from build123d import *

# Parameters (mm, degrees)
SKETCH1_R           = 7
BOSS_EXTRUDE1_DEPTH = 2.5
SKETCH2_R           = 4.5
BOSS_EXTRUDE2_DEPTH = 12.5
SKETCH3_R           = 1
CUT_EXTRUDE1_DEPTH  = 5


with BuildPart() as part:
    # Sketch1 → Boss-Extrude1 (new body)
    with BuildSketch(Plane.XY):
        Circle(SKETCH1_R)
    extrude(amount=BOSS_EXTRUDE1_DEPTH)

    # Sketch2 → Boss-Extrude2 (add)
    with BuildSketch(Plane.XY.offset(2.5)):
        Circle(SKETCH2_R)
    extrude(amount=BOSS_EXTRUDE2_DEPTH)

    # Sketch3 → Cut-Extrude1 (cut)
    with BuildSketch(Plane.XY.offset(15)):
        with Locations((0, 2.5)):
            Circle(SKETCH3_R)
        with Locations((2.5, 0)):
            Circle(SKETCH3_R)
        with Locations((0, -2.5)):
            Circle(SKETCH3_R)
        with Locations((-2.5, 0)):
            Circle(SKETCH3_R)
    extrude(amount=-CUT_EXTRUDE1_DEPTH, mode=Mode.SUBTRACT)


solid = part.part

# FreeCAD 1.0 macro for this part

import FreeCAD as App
import Part
import Sketcher

V = App.Vector

doc = App.newDocument("Part")
params = doc.addObject("Spreadsheet::Sheet", "Params")
for row, (alias, value) in enumerate([
    ("sketch1_diameter", "14 mm"),
    ("pad1_length", "2.5 mm"),
    ("sketch2_diameter", "9 mm"),
    ("pad2_length", "12.5 mm"),
    ("sketch3_diameter", "2 mm"),
    ("pocket1_length", "5 mm"),
], start=1):
    params.set(f"A{row}", alias)
    params.set(f"B{row}", "=" + value)
    params.setAlias(f"B{row}", alias)

body = doc.addObject("PartDesign::Body", "Body")

# Sketch on XY plane
sketch1 = doc.addObject("Sketcher::SketchObject", "Sketch")
body.addObject(sketch1)
sketch1.AttachmentSupport = (doc.XY_Plane, [""])
sketch1.MapMode = "FlatFace"
sketch1.addGeometry(Part.Circle(V(0, 0, 0), V(0, 0, 1), 7), False)
sketch1.addConstraint([
    Sketcher.Constraint("Coincident", 0, 3, -1, 1),
    Sketcher.Constraint("Diameter", 0, 14.0),
])
sketch1.setExpression("Constraints[1]", "Params.sketch1_diameter")
pad1 = doc.addObject("PartDesign::Pad", "Pad")
body.addObject(pad1)
pad1.Profile = sketch1
pad1.setExpression("Length", "Params.pad1_length")

# Sketch on XY plane
sketch2 = doc.addObject("Sketcher::SketchObject", "Sketch001")
body.addObject(sketch2)
sketch2.AttachmentSupport = (doc.XY_Plane, [""])
sketch2.MapMode = "FlatFace"
sketch2.AttachmentOffset = App.Placement(V(0, 0, 2.5), App.Rotation())
sketch2.addGeometry(Part.Circle(V(0, 0, 0), V(0, 0, 1), 4.5), False)
sketch2.addConstraint([
    Sketcher.Constraint("Coincident", 0, 3, -1, 1),
    Sketcher.Constraint("Diameter", 0, 9.0),
])
sketch2.setExpression("Constraints[1]", "Params.sketch2_diameter")
pad2 = doc.addObject("PartDesign::Pad", "Pad001")
body.addObject(pad2)
pad2.Profile = sketch2
pad2.setExpression("Length", "Params.pad2_length")

# Sketch on XY plane
sketch3 = doc.addObject("Sketcher::SketchObject", "Sketch002")
body.addObject(sketch3)
sketch3.AttachmentSupport = (doc.XY_Plane, [""])
sketch3.MapMode = "FlatFace"
sketch3.AttachmentOffset = App.Placement(V(0, 0, 15), App.Rotation())
sketch3.addGeometry([
    Part.Circle(V(0, 2.5, 0), V(0, 0, 1), 1),
    Part.Circle(V(2.5, 0, 0), V(0, 0, 1), 1),
    Part.Circle(V(0, -2.5, 0), V(0, 0, 1), 1),
    Part.Circle(V(-2.5, 0, 0), V(0, 0, 1), 1),
], False)
sketch3.addConstraint([
    Sketcher.Constraint("Equal", 0, 1),
    Sketcher.Constraint("Equal", 1, 2),
    Sketcher.Constraint("Equal", 2, 3),
    Sketcher.Constraint("Symmetric", 0, 3, 2, 3, -1, 1),
    Sketcher.Constraint("Symmetric", 1, 3, 3, 3, -1, 1),
    Sketcher.Constraint("PointOnObject", 0, 3, -2),
    Sketcher.Constraint("PointOnObject", 1, 3, -1),
    Sketcher.Constraint("Diameter", 0, 2.0),
    Sketcher.Constraint("DistanceY", 2, 3, 0, 3, 5.0),
    Sketcher.Constraint("DistanceX", 3, 3, 1, 3, 5.0),
])
sketch3.setExpression("Constraints[7]", "Params.sketch3_diameter")
pocket1 = doc.addObject("PartDesign::Pocket", "Pocket")
body.addObject(pocket1)
pocket1.Profile = sketch3
pocket1.setExpression("Length", "Params.pocket1_length")

doc.recompute()
